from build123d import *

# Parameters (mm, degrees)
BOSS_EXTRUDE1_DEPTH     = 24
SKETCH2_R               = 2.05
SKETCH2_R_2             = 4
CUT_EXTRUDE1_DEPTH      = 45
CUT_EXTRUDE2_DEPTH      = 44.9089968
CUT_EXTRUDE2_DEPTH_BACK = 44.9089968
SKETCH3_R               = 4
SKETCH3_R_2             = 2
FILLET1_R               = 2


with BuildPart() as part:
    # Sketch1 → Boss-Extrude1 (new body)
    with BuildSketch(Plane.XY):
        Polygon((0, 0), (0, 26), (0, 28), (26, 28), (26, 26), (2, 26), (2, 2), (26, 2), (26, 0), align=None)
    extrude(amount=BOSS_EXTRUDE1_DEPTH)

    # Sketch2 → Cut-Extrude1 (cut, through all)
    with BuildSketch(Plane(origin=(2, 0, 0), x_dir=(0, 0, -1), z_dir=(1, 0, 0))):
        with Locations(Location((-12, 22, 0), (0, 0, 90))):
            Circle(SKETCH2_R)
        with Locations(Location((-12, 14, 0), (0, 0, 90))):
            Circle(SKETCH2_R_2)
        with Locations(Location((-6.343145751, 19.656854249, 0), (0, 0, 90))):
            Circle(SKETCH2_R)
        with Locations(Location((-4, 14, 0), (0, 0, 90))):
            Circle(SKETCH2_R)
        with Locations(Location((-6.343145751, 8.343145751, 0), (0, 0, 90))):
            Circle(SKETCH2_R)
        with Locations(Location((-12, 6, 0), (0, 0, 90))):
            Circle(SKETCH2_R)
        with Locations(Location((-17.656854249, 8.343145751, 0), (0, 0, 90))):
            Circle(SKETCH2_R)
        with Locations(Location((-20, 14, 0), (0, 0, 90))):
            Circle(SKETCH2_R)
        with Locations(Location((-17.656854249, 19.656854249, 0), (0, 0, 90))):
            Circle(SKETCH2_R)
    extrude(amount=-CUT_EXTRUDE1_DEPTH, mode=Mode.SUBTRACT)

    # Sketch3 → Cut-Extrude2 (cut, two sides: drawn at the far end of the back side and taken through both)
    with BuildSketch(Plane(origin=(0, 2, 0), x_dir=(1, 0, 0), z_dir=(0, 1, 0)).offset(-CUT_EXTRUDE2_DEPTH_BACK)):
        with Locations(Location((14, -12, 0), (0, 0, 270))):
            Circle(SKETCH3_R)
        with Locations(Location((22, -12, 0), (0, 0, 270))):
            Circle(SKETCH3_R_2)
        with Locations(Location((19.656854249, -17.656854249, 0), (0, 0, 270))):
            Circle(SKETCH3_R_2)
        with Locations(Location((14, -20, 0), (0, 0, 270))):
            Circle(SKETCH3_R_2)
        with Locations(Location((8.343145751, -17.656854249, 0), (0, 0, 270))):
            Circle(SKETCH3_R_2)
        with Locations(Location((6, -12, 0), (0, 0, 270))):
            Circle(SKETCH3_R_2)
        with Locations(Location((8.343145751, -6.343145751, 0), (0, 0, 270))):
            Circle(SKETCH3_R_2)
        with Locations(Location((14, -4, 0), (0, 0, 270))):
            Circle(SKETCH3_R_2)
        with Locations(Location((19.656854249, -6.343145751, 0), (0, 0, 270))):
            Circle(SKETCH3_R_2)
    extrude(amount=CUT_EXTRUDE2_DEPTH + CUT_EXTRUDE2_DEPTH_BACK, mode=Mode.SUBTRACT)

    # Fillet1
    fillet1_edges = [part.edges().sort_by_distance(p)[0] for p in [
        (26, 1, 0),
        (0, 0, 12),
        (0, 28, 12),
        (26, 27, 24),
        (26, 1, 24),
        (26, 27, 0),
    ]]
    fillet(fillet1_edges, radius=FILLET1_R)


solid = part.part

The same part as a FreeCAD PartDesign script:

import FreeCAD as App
import Part
import Sketcher


def edges_at(feature, points):
    """Names of the edges that pass closest to the given points."""
    edges = feature.Shape.Edges
    near = lambda p: min(range(len(edges)), key=lambda i: edges[i].distToShape(Part.Vertex(*p))[0])
    return sorted({f"Edge{near(p) + 1}" for p in points})

doc = App.newDocument("Part")
body = doc.addObject("PartDesign::Body", "Body")

sketch1 = body.newObject("Sketcher::SketchObject", "Sketch")
sketch1.AttachmentSupport = (doc.getObject("XY_Plane"), [""])
sketch1.MapMode = "FlatFace"
sketch1.addGeometry(Part.LineSegment(App.Vector(0, 28, 0), App.Vector(0, 0, 0)), False)
sketch1.addGeometry(Part.LineSegment(App.Vector(0, 0, 0), App.Vector(26, 0, 0)), False)
sketch1.addGeometry(Part.LineSegment(App.Vector(26, 0, 0), App.Vector(26, 2, 0)), False)
sketch1.addGeometry(Part.LineSegment(App.Vector(26, 2, 0), App.Vector(2, 2, 0)), False)
sketch1.addGeometry(Part.LineSegment(App.Vector(2, 2, 0), App.Vector(2, 26, 0)), False)
sketch1.addGeometry(Part.LineSegment(App.Vector(2, 26, 0), App.Vector(26, 26, 0)), False)
sketch1.addGeometry(Part.LineSegment(App.Vector(26, 26, 0), App.Vector(26, 28, 0)), False)
sketch1.addGeometry(Part.LineSegment(App.Vector(26, 28, 0), App.Vector(0, 28, 0)), False)
sketch1.addConstraint(Sketcher.Constraint("Coincident", 0, 2, 1, 1))
sketch1.addConstraint(Sketcher.Constraint("Coincident", 1, 2, 2, 1))
sketch1.addConstraint(Sketcher.Constraint("Coincident", 2, 2, 3, 1))
sketch1.addConstraint(Sketcher.Constraint("Coincident", 3, 2, 4, 1))
sketch1.addConstraint(Sketcher.Constraint("Coincident", 4, 2, 5, 1))
sketch1.addConstraint(Sketcher.Constraint("Coincident", 5, 2, 6, 1))
sketch1.addConstraint(Sketcher.Constraint("Coincident", 6, 2, 7, 1))
sketch1.addConstraint(Sketcher.Constraint("Coincident", 7, 2, 0, 1))
sketch1.addConstraint(Sketcher.Constraint("Vertical", 0))
sketch1.addConstraint(Sketcher.Constraint("Horizontal", 1))
sketch1.addConstraint(Sketcher.Constraint("Vertical", 2))
sketch1.addConstraint(Sketcher.Constraint("Horizontal", 3))
sketch1.addConstraint(Sketcher.Constraint("Vertical", 4))
sketch1.addConstraint(Sketcher.Constraint("Horizontal", 5))
sketch1.addConstraint(Sketcher.Constraint("Vertical", 6))
sketch1.addConstraint(Sketcher.Constraint("Horizontal", 7))
sketch1.addConstraint(Sketcher.Constraint("Coincident", 0, 2, -1, 1))
sketch1.addConstraint(Sketcher.Constraint("Vertical", 2, 2, 5, 2))
sketch1.addConstraint(Sketcher.Constraint("Equal", 5, 4))
sketch1.addConstraint(Sketcher.Constraint("Equal", 2, 6))
sketch1.addConstraint(Sketcher.Constraint("DistanceX", 1, 1, 1, 2, 26.0))
sketch1.addConstraint(Sketcher.Constraint("DistanceX", 3, 2, 3, 1, 24.0))
sketch1.addConstraint(Sketcher.Constraint("DistanceY", 0, 2, 0, 1, 28.0))
pad1 = body.newObject("PartDesign::Pad", "Pad")
pad1.Profile = sketch1
pad1.Length = 24

sketch2 = body.newObject("Sketcher::SketchObject", "Sketch001")
sketch2.AttachmentSupport = (doc.getObject("YZ_Plane"), [""])
sketch2.MapMode = "FlatFace"
sketch2.AttachmentOffset = App.Placement(App.Vector(0, 0, 2), App.Rotation())
sketch2.addGeometry(Part.Circle(App.Vector(22, 12, 0), App.Vector(0, 0, 1), 2.05), False)
sketch2.addGeometry(Part.Circle(App.Vector(14, 12, 0), App.Vector(0, 0, 1), 4), False)
sketch2.addGeometry(Part.Circle(App.Vector(19.656854, 6.343146, 0), App.Vector(0, 0, 1), 2.05), False)
sketch2.addGeometry(Part.Circle(App.Vector(14, 4, 0), App.Vector(0, 0, 1), 2.05), False)
sketch2.addGeometry(Part.Circle(App.Vector(8.343146, 6.343146, 0), App.Vector(0, 0, 1), 2.05), False)
sketch2.addGeometry(Part.Circle(App.Vector(6, 12, 0), App.Vector(0, 0, 1), 2.05), False)
sketch2.addGeometry(Part.Circle(App.Vector(8.343146, 17.656854, 0), App.Vector(0, 0, 1), 2.05), False)
sketch2.addGeometry(Part.Circle(App.Vector(14, 20, 0), App.Vector(0, 0, 1), 2.05), False)
sketch2.addGeometry(Part.Circle(App.Vector(19.656854, 17.656854, 0), App.Vector(0, 0, 1), 2.05), False)
sketch2.addConstraint(Sketcher.Constraint("Equal", 0, 2))
sketch2.addConstraint(Sketcher.Constraint("Equal", 2, 3))
sketch2.addConstraint(Sketcher.Constraint("Equal", 3, 4))
sketch2.addConstraint(Sketcher.Constraint("Equal", 4, 5))
sketch2.addConstraint(Sketcher.Constraint("Equal", 5, 6))
sketch2.addConstraint(Sketcher.Constraint("Equal", 6, 7))
sketch2.addConstraint(Sketcher.Constraint("Equal", 7, 8))
sketch2.addConstraint(Sketcher.Constraint("Horizontal", 0, 3, 1, 3))
sketch2.addConstraint(Sketcher.Constraint("Horizontal", 2, 3, 4, 3))
sketch2.addConstraint(Sketcher.Constraint("Horizontal", 1, 3, 5, 3))
sketch2.addConstraint(Sketcher.Constraint("Horizontal", 6, 3, 8, 3))
sketch2.addConstraint(Sketcher.Constraint("Vertical", 1, 3, 3, 3))
sketch2.addConstraint(Sketcher.Constraint("Vertical", 4, 3, 6, 3))
sketch2.addConstraint(Sketcher.Constraint("Vertical", 3, 3, 7, 3))
sketch2.addConstraint(Sketcher.Constraint("Vertical", 2, 3, 8, 3))
sketch2.addConstraint(Sketcher.Constraint("Diameter", 1, 8.0))
sketch2.addConstraint(Sketcher.Constraint("Diameter", 0, 4.1))
sketch2.addConstraint(Sketcher.Constraint("DistanceX", -1, 1, 0, 3, 22.0))
sketch2.addConstraint(Sketcher.Constraint("DistanceY", -1, 1, 0, 3, 12.0))
sketch2.addConstraint(Sketcher.Constraint("DistanceX", -1, 1, 1, 3, 14.0))
sketch2.addConstraint(Sketcher.Constraint("DistanceY", -1, 1, 3, 3, 4.0))
sketch2.addConstraint(Sketcher.Constraint("DistanceX", -1, 1, 5, 3, 6.0))
sketch2.addConstraint(Sketcher.Constraint("DistanceY", -1, 1, 7, 3, 20.0))
sketch2.addConstraint(Sketcher.Constraint("DistanceX", 4, 3, 2, 3, 11.313708))
sketch2.addConstraint(Sketcher.Constraint("DistanceY", 4, 3, 6, 3, 11.313708))
sketch2.addConstraint(Sketcher.Constraint("DistanceX", -1, 1, 2, 3, 19.656854))
sketch2.addConstraint(Sketcher.Constraint("DistanceY", -1, 1, 2, 3, 6.343146))
pocket1 = body.newObject("PartDesign::Pocket", "Pocket")
pocket1.Profile = sketch2
pocket1.Type = "ThroughAll"

sketch3 = body.newObject("Sketcher::SketchObject", "Sketch002")
sketch3.AttachmentSupport = (doc.getObject("XZ_Plane"), [""])
sketch3.MapMode = "FlatFace"
sketch3.AttachmentOffset = App.Placement(App.Vector(0, 0, -2), App.Rotation())
sketch3.addGeometry(Part.Circle(App.Vector(14, 12, 0), App.Vector(0, 0, 1), 4), False)
sketch3.addGeometry(Part.Circle(App.Vector(22, 12, 0), App.Vector(0, 0, 1), 2), False)
sketch3.addGeometry(Part.Circle(App.Vector(19.656854, 17.656854, 0), App.Vector(0, 0, 1), 2), False)
sketch3.addGeometry(Part.Circle(App.Vector(14, 20, 0), App.Vector(0, 0, 1), 2), False)
sketch3.addGeometry(Part.Circle(App.Vector(8.343146, 17.656854, 0), App.Vector(0, 0, 1), 2), False)
sketch3.addGeometry(Part.Circle(App.Vector(6, 12, 0), App.Vector(0, 0, 1), 2), False)
sketch3.addGeometry(Part.Circle(App.Vector(8.343146, 6.343146, 0), App.Vector(0, 0, 1), 2), False)
sketch3.addGeometry(Part.Circle(App.Vector(14, 4, 0), App.Vector(0, 0, 1), 2), False)
sketch3.addGeometry(Part.Circle(App.Vector(19.656854, 6.343146, 0), App.Vector(0, 0, 1), 2), False)
sketch3.addConstraint(Sketcher.Constraint("Equal", 1, 2))
sketch3.addConstraint(Sketcher.Constraint("Equal", 2, 3))
sketch3.addConstraint(Sketcher.Constraint("Equal", 3, 4))
sketch3.addConstraint(Sketcher.Constraint("Equal", 4, 5))
sketch3.addConstraint(Sketcher.Constraint("Equal", 5, 6))
sketch3.addConstraint(Sketcher.Constraint("Equal", 6, 7))
sketch3.addConstraint(Sketcher.Constraint("Equal", 7, 8))
sketch3.addConstraint(Sketcher.Constraint("Horizontal", 0, 3, 1, 3))
sketch3.addConstraint(Sketcher.Constraint("Horizontal", 2, 3, 4, 3))
sketch3.addConstraint(Sketcher.Constraint("Horizontal", 1, 3, 5, 3))
sketch3.addConstraint(Sketcher.Constraint("Horizontal", 6, 3, 8, 3))
sketch3.addConstraint(Sketcher.Constraint("Vertical", 0, 3, 3, 3))
sketch3.addConstraint(Sketcher.Constraint("Vertical", 4, 3, 6, 3))
sketch3.addConstraint(Sketcher.Constraint("Vertical", 3, 3, 7, 3))
sketch3.addConstraint(Sketcher.Constraint("Vertical", 2, 3, 8, 3))
sketch3.addConstraint(Sketcher.Constraint("Diameter", 0, 8.0))
sketch3.addConstraint(Sketcher.Constraint("Diameter", 1, 4.0))
sketch3.addConstraint(Sketcher.Constraint("DistanceX", -1, 1, 0, 3, 14.0))
sketch3.addConstraint(Sketcher.Constraint("DistanceY", -1, 1, 0, 3, 12.0))
sketch3.addConstraint(Sketcher.Constraint("DistanceX", -1, 1, 1, 3, 22.0))
sketch3.addConstraint(Sketcher.Constraint("DistanceY", -1, 1, 3, 3, 20.0))
sketch3.addConstraint(Sketcher.Constraint("DistanceX", -1, 1, 5, 3, 6.0))
sketch3.addConstraint(Sketcher.Constraint("DistanceY", -1, 1, 7, 3, 4.0))
sketch3.addConstraint(Sketcher.Constraint("DistanceX", 4, 3, 2, 3, 11.313708))
sketch3.addConstraint(Sketcher.Constraint("DistanceY", 6, 3, 4, 3, 11.313708))
sketch3.addConstraint(Sketcher.Constraint("DistanceX", -1, 1, 2, 3, 19.656854))
sketch3.addConstraint(Sketcher.Constraint("DistanceY", -1, 1, 2, 3, 17.656854))
pocket2 = body.newObject("PartDesign::Pocket", "Pocket001")
pocket2.Profile = sketch3
pocket2.Type = "ThroughAll"
pocket2.Midplane = True
doc.recompute()

fillet = body.newObject("PartDesign::Fillet", "Fillet")
fillet.Base = (pocket2, edges_at(pocket2, [
    (26, 1, 0),
    (0, 0, 12),
    (0, 28, 12),
    (26, 27, 24),
    (26, 1, 24),
    (26, 27, 0),
]))
fillet.Radius = 2

doc.recompute()
